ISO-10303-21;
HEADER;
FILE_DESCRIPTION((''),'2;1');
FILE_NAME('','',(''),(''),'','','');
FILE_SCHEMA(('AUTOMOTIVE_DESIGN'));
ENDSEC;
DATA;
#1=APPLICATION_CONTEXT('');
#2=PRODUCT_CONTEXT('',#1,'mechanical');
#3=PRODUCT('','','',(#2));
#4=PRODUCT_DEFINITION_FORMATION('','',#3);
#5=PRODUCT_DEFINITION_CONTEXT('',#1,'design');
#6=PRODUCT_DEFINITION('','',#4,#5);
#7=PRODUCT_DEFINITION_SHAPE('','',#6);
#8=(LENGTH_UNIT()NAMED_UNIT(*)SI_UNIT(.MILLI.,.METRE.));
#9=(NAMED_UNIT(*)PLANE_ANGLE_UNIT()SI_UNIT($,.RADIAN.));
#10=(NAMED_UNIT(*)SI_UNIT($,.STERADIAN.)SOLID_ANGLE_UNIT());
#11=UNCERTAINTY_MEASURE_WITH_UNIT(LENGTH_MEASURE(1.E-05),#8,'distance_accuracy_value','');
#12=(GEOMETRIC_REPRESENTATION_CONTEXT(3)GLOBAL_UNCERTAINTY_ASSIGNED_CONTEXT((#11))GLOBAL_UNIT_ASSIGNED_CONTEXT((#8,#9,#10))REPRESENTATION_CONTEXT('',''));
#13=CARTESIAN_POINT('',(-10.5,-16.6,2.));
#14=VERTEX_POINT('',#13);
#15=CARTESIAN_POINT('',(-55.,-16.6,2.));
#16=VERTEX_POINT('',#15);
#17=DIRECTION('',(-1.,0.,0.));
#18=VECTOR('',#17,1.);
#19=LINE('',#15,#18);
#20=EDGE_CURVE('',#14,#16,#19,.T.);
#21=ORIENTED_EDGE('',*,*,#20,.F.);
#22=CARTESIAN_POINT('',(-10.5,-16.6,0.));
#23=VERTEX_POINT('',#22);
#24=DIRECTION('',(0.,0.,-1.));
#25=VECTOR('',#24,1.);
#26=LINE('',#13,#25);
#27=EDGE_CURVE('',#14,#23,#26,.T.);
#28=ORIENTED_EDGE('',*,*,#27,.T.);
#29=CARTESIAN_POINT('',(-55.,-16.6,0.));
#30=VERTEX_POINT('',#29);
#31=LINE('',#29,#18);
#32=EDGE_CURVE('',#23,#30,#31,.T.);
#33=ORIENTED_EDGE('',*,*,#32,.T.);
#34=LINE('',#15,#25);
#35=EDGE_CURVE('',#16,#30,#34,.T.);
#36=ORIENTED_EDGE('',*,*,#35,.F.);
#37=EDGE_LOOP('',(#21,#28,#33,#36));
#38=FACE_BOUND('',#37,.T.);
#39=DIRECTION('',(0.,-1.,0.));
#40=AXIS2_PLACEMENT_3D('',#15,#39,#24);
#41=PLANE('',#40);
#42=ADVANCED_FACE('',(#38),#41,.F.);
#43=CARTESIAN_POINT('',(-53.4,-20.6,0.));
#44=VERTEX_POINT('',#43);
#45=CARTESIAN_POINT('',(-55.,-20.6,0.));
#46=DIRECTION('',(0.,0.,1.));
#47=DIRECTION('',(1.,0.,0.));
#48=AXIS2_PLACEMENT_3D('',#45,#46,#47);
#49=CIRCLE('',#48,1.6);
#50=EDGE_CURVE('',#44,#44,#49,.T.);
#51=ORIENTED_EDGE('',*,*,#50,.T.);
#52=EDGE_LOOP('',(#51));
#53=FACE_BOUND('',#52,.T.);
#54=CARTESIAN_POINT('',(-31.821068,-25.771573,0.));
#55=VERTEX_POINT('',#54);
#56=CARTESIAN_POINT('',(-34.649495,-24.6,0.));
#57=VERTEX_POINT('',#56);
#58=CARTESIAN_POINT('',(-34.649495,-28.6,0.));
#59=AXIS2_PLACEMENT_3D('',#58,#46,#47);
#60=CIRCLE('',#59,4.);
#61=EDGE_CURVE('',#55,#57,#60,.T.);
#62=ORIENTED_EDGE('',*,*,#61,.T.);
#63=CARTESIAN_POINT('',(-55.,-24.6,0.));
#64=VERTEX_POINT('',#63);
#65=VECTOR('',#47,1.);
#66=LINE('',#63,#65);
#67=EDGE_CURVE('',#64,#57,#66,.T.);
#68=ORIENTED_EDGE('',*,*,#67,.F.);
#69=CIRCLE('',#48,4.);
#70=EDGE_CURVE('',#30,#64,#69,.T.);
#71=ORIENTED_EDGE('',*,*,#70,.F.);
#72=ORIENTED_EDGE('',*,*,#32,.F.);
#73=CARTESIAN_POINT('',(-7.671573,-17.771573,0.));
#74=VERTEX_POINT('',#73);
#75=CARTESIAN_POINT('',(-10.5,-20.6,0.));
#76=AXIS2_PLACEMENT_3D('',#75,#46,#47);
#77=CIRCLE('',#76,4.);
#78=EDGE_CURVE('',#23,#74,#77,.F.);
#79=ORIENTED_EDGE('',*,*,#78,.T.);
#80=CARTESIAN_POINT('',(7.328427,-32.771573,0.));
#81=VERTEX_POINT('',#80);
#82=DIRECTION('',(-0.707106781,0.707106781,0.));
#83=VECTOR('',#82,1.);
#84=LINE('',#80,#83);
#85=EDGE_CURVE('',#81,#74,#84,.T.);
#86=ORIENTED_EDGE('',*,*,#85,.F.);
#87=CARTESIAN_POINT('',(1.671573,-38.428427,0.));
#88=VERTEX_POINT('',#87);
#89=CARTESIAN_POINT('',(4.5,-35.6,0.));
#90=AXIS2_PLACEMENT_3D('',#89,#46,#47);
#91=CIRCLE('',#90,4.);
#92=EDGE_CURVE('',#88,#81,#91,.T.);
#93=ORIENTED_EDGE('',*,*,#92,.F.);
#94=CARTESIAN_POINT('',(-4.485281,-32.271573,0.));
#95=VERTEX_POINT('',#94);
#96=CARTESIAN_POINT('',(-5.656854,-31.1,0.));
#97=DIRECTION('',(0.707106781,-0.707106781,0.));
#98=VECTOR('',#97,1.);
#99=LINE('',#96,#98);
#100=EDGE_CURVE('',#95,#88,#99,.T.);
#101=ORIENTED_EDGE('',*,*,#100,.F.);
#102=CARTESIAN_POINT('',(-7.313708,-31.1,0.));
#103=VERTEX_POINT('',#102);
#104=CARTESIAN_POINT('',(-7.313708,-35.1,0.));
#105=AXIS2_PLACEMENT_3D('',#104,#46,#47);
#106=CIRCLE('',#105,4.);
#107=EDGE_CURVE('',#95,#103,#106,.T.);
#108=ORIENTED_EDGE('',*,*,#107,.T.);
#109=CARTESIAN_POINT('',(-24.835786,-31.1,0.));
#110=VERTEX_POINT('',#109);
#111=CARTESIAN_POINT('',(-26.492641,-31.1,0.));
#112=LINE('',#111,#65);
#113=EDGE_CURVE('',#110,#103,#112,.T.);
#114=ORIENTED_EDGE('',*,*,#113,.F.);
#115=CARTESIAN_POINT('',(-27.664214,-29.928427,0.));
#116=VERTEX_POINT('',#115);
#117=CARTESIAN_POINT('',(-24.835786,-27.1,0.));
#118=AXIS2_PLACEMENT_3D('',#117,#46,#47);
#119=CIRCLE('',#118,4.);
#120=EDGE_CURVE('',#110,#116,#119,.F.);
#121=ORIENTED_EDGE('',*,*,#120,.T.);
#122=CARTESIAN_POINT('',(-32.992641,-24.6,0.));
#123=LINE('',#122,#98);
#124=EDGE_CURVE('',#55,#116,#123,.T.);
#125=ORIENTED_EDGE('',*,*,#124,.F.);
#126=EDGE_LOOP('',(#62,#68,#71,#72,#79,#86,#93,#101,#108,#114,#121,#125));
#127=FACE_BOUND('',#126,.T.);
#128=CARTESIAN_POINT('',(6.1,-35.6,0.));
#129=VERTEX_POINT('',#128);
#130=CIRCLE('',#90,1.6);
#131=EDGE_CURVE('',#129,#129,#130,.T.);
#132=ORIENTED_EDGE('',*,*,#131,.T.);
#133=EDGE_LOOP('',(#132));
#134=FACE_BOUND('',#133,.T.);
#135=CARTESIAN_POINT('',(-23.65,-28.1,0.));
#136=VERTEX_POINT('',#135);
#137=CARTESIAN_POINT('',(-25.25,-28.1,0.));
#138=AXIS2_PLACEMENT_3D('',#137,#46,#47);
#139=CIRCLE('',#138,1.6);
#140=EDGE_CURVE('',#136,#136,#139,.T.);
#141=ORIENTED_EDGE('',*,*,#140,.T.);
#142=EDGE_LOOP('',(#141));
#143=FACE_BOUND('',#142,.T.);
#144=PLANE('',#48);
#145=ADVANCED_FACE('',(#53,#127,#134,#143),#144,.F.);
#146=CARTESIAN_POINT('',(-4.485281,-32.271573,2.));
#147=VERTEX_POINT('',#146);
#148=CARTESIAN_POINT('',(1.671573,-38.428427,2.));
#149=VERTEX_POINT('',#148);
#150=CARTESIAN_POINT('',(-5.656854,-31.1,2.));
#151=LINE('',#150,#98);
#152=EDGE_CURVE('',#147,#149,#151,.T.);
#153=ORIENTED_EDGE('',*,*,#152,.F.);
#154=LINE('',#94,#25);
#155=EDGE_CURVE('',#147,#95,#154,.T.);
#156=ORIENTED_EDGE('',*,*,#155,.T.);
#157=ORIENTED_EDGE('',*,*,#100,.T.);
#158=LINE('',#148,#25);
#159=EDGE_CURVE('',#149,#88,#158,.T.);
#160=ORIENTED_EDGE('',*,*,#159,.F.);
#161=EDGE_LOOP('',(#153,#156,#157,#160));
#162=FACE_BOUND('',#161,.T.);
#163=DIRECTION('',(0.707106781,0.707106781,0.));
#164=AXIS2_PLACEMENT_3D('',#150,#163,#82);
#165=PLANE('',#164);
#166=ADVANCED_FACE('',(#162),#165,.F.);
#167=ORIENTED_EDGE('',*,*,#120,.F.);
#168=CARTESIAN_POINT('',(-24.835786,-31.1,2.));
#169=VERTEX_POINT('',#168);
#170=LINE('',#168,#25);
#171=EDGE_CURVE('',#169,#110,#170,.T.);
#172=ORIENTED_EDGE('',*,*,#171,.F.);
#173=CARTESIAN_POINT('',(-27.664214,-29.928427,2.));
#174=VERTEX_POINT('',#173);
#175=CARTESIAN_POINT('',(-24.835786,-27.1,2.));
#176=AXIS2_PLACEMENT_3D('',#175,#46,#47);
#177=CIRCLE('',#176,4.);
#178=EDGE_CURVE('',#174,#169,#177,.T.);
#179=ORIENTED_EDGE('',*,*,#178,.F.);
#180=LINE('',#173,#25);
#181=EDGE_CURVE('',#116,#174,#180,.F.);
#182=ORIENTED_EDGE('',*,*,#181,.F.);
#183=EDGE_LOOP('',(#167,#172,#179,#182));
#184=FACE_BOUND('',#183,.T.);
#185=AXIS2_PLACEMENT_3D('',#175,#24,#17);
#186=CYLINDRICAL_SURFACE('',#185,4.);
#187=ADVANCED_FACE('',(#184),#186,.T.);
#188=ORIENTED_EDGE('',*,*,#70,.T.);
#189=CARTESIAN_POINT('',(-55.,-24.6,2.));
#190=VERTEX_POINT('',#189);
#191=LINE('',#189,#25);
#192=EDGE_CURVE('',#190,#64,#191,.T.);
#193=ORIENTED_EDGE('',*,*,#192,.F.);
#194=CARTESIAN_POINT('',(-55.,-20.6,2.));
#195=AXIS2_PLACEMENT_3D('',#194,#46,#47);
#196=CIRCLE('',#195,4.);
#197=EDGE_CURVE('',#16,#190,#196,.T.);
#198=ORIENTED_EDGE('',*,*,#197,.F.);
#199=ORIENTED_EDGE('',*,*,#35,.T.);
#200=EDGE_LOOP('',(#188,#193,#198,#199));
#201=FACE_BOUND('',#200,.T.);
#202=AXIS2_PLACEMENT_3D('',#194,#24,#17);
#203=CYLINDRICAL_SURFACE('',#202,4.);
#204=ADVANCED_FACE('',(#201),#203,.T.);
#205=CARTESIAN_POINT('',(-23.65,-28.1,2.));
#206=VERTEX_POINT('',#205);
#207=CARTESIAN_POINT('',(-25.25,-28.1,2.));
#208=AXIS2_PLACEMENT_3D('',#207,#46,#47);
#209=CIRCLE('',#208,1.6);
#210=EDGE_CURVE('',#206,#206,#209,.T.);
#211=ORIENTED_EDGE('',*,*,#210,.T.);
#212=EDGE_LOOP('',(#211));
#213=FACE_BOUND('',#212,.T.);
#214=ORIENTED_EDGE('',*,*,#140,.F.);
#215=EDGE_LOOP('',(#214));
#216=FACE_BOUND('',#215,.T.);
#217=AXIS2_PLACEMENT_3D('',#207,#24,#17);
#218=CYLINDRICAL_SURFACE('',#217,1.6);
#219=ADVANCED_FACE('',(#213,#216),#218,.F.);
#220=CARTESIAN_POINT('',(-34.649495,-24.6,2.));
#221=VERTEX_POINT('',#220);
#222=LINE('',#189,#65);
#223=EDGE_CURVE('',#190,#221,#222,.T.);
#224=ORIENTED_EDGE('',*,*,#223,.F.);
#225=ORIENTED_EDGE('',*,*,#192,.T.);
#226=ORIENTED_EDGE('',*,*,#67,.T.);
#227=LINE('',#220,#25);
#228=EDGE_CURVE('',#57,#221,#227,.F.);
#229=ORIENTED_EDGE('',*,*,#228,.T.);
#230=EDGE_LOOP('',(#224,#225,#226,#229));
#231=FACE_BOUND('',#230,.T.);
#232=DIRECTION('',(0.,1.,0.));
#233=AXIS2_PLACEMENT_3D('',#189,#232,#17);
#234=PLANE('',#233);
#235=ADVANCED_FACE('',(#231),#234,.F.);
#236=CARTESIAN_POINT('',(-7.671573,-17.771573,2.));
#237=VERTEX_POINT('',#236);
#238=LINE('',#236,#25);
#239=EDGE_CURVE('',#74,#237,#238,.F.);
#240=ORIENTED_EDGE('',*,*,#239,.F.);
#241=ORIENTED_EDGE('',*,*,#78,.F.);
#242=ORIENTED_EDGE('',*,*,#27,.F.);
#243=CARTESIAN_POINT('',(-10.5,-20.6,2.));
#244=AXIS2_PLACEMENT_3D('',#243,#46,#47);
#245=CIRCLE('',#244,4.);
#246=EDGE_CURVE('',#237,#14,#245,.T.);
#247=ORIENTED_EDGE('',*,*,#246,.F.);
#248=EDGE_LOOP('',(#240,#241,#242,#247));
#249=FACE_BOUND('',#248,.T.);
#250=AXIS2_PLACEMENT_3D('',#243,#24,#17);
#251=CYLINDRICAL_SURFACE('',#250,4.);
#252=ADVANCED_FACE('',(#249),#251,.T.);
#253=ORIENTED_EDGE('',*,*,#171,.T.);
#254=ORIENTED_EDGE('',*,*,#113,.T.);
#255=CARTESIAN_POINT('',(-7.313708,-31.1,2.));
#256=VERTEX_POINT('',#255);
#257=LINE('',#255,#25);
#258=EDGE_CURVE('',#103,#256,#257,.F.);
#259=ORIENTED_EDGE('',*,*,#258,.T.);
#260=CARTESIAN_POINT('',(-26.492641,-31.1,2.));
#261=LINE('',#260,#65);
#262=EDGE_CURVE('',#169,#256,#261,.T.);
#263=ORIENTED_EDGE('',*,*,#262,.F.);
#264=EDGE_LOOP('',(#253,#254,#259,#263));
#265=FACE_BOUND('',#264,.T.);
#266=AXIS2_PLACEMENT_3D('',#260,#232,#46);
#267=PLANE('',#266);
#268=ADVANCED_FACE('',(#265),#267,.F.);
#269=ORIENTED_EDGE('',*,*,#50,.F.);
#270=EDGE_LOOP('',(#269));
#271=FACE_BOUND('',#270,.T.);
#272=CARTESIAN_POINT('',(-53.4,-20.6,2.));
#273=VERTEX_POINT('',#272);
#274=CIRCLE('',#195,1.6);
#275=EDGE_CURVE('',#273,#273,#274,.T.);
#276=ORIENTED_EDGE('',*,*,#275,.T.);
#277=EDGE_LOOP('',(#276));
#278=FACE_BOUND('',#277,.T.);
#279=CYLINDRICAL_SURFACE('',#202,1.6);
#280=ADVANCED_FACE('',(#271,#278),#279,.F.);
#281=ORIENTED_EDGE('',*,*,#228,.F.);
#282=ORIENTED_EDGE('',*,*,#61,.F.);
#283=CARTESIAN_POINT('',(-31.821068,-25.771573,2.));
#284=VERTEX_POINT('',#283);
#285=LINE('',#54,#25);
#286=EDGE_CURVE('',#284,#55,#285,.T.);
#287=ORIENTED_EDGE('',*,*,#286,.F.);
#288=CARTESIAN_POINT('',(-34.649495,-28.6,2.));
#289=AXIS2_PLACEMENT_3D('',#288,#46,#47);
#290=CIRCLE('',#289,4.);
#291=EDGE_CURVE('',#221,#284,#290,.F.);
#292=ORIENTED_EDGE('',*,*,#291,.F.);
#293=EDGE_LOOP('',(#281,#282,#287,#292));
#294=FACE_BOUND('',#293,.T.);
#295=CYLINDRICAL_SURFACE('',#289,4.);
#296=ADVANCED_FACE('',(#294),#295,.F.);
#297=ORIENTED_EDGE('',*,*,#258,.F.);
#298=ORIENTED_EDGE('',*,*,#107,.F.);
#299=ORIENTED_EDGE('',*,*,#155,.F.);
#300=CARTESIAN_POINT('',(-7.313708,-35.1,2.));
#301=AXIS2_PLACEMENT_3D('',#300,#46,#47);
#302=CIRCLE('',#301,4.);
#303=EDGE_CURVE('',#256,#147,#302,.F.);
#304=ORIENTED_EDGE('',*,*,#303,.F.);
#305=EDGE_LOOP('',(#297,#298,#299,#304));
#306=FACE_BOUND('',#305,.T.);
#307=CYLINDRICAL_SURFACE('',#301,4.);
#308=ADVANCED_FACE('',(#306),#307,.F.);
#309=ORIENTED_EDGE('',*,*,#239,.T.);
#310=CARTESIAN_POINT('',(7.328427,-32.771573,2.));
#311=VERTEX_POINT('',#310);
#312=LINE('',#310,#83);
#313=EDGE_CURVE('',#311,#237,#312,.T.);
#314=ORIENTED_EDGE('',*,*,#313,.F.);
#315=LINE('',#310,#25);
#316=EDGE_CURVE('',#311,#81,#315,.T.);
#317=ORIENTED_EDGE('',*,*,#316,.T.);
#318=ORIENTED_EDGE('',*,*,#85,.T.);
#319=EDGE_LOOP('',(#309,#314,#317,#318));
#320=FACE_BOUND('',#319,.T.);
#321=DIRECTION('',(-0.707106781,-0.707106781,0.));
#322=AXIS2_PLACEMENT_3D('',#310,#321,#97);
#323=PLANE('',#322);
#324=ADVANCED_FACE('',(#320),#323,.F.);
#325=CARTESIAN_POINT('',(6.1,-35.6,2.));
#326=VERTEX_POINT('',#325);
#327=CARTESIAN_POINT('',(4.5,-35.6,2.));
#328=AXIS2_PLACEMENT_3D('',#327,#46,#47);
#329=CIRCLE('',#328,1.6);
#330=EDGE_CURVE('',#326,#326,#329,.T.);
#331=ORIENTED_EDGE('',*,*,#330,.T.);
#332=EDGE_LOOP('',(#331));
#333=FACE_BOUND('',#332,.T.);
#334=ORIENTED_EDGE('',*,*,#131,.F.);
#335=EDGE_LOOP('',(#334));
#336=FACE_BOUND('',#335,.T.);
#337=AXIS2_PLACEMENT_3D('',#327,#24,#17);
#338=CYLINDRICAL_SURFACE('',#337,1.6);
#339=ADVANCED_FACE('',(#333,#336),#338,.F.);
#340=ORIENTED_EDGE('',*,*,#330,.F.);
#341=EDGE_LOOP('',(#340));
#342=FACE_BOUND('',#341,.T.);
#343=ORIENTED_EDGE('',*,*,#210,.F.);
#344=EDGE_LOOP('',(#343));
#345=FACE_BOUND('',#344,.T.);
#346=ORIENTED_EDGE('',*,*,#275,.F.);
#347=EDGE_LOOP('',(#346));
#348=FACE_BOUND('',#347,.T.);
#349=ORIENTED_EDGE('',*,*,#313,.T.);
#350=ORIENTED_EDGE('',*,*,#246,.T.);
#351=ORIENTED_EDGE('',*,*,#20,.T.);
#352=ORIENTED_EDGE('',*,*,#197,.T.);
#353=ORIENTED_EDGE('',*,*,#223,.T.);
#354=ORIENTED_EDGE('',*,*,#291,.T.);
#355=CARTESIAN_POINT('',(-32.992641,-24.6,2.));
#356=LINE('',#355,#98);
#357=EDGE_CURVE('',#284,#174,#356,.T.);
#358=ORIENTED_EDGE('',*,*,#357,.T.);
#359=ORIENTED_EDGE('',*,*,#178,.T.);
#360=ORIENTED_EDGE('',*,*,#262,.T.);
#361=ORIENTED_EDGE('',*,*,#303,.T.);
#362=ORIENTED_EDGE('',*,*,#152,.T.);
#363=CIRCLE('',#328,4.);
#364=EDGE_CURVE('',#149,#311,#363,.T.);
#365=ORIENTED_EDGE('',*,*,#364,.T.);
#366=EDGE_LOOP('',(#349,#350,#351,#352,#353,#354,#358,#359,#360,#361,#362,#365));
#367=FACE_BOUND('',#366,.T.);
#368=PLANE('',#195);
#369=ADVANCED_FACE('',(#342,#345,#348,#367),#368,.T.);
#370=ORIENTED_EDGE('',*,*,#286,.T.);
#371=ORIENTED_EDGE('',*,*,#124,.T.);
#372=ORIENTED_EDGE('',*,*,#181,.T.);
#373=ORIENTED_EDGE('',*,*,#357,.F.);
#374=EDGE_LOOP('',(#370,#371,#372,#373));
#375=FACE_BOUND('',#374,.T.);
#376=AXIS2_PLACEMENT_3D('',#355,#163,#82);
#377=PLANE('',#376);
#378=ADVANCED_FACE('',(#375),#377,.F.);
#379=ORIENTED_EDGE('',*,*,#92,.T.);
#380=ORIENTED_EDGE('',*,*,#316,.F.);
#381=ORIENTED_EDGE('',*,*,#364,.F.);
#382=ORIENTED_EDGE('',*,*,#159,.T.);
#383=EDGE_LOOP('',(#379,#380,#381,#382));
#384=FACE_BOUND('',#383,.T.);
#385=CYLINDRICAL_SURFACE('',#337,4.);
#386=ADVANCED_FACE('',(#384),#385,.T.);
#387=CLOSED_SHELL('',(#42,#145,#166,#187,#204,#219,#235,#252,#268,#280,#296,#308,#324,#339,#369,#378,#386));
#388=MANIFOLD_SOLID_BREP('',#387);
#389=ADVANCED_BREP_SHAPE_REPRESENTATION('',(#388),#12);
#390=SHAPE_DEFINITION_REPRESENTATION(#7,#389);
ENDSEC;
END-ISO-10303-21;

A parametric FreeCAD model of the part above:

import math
import FreeCAD as App
import Part
import Sketcher

V = App.Vector
Q = App.Units.Quantity


def edges_at(feature, points):
    """Names of the edges that pass closest to the given points."""
    edges = feature.Shape.Edges
    near = lambda p: min(range(len(edges)), key=lambda i: edges[i].distToShape(Part.Vertex(*p))[0])
    return sorted({f"Edge{near(p) + 1}" for p in points})

doc = App.newDocument("Part")
body = doc.addObject("PartDesign::Body", "Body")

sketch1 = body.newObject("Sketcher::SketchObject", "Sketch")
sketch1.AttachmentSupport = (doc.getObject("XY_Plane"), [""])
sketch1.MapMode = "FlatFace"
sketch1.addGeometry(Part.LineSegment(V(-33, -24.6, 0), V(-26.5, -31.1, 0)), False)
sketch1.addGeometry(Part.LineSegment(V(-26.5, -31.1, 0), V(-5.7, -31.1, 0)), False)
sketch1.addGeometry(Part.LineSegment(V(-5.7, -31.1, 0), V(1.7, -38.4, 0)), False)
sketch1.addGeometry(Part.ArcOfCircle(Part.Circle(V(4.5, -35.6, 0), V(0, 0, 1), 4), math.radians(-135), math.radians(45)), False)
sketch1.addGeometry(Part.LineSegment(V(7.3, -32.8, 0), V(-8.8, -16.6, 0)), False)
sketch1.addGeometry(Part.LineSegment(V(-8.8, -16.6, 0), V(-55, -16.6, 0)), False)
sketch1.addGeometry(Part.ArcOfCircle(Part.Circle(V(-55, -20.6, 0), V(0, 0, 1), 4), math.radians(90), math.radians(270)), False)
sketch1.addGeometry(Part.LineSegment(V(-55, -24.6, 0), V(-33, -24.6, 0)), False)
sketch1.addGeometry(Part.Circle(V(4.5, -35.6, 0), V(0, 0, 1), 1.6), False)
sketch1.addGeometry(Part.Circle(V(-25.2, -28.1, 0), V(0, 0, 1), 1.6), False)
sketch1.addGeometry(Part.Circle(V(-55, -20.6, 0), V(0, 0, 1), 1.6), False)
sketch1.addConstraint(Sketcher.Constraint("Coincident", 0, 2, 1, 1))
sketch1.addConstraint(Sketcher.Constraint("Coincident", 1, 2, 2, 1))
sketch1.addConstraint(Sketcher.Constraint("Tangent", 2, 2, 3, 1))
sketch1.addConstraint(Sketcher.Constraint("Tangent", 3, 2, 4, 1))
sketch1.addConstraint(Sketcher.Constraint("Coincident", 4, 2, 5, 1))
sketch1.addConstraint(Sketcher.Constraint("Tangent", 5, 2, 6, 1))
sketch1.addConstraint(Sketcher.Constraint("Tangent", 6, 2, 7, 1))
sketch1.addConstraint(Sketcher.Constraint("Coincident", 7, 2, 0, 1))
sketch1.addConstraint(Sketcher.Constraint("Horizontal", 1))
sketch1.addConstraint(Sketcher.Constraint("Horizontal", 5))
sketch1.addConstraint(Sketcher.Constraint("Horizontal", 7))
sketch1.addConstraint(Sketcher.Constraint("Coincident", 8, 3, 3, 3))
sketch1.addConstraint(Sketcher.Constraint("Coincident", 10, 3, 6, 3))
sketch1.addConstraint(Sketcher.Constraint("Equal", 3, 6))
sketch1.addConstraint(Sketcher.Constraint("Equal", 8, 9))
sketch1.addConstraint(Sketcher.Constraint("Equal", 9, 10))
sketch1.addConstraint(Sketcher.Constraint("Parallel", 0, 2))
sketch1.addConstraint(Sketcher.Constraint("Parallel", 2, 4))
sketch1.addConstraint(Sketcher.Constraint("Radius", 3, 4.0))
sketch1.addConstraint(Sketcher.Constraint("Diameter", 8, 3.2))
sketch1.addConstraint(Sketcher.Constraint("Angle", 0, Q("-45 deg")))
sketch1.addConstraint(Sketcher.Constraint("DistanceX", 6, 3, -1, 1, 55.0))
sketch1.addConstraint(Sketcher.Constraint("DistanceY", 3, 3, 6, 3, 15.0))
sketch1.addConstraint(Sketcher.Constraint("DistanceY", 0, 2, 9, 3, 3.0))
sketch1.addConstraint(Sketcher.Constraint("DistanceX", -1, 1, 3, 3, 4.5))
sketch1.addConstraint(Sketcher.Constraint("DistanceY", 3, 3, -1, 1, 35.6))
sketch1.addConstraint(Sketcher.Constraint("DistanceY", 9, 3, -1, 1, 28.1))
sketch1.addConstraint(Sketcher.Constraint("DistanceX", 9, 3, -1, 1, 25.25))
sketch1.addConstraint(Sketcher.Constraint("DistanceX", 7, 1, 7, 2, 22.007359))
pad1 = body.newObject("PartDesign::Pad", "Pad")
pad1.Profile = sketch1
pad1.Length = 2
doc.recompute()

fillet = body.newObject("PartDesign::Fillet", "Fillet")
fillet.Base = (pad1, edges_at(pad1, [
    (-8.843, -16.6, 1),
    (-5.657, -31.1, 1),
    (-26.493, -31.1, 1),
    (-32.993, -24.6, 1),
]))
fillet.Radius = 4

doc.recompute()
